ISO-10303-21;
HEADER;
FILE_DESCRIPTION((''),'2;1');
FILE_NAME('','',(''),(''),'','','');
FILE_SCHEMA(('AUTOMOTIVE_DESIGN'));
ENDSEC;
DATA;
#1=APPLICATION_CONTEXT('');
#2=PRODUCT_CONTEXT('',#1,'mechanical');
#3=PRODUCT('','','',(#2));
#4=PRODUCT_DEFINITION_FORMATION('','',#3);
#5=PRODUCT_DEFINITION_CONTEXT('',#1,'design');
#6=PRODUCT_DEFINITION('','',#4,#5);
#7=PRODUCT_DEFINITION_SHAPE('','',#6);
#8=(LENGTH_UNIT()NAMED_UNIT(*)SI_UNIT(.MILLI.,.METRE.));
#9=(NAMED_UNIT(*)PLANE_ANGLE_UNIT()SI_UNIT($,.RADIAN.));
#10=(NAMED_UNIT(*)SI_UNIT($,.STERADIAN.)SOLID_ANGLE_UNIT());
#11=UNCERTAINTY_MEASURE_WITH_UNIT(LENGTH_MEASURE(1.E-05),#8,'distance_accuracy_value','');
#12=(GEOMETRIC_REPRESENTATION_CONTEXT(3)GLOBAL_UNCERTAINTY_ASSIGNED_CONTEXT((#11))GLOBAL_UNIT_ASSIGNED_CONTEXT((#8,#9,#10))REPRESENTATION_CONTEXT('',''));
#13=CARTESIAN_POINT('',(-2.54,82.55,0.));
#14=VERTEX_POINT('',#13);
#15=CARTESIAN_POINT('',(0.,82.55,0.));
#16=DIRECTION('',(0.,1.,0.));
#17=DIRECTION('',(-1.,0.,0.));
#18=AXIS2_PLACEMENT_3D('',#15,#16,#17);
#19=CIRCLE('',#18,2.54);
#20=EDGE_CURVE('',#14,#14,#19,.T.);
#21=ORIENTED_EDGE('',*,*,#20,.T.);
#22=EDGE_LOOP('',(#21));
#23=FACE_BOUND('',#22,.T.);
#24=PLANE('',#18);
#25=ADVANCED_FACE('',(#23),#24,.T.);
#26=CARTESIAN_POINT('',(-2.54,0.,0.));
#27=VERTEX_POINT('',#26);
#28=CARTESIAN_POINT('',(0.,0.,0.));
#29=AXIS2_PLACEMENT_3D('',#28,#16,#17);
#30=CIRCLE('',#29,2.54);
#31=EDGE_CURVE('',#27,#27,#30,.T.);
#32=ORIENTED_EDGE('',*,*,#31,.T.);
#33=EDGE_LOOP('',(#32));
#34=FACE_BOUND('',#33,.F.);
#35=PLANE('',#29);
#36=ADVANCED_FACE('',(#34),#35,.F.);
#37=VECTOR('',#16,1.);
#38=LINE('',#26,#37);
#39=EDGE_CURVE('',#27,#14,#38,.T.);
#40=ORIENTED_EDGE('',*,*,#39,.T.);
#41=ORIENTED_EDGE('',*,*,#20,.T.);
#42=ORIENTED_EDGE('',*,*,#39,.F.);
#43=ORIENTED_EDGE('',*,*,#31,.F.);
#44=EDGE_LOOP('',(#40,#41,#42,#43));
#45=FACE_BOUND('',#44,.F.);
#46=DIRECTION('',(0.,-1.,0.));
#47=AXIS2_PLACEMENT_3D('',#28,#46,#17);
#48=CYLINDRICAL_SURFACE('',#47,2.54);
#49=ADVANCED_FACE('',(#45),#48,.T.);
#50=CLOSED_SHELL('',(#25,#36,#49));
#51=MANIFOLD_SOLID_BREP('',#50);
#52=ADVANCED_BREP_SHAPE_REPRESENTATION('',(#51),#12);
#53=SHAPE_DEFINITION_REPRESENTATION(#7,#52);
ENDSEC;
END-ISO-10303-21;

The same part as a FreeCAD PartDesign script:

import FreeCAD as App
import Part
import Sketcher

V = App.Vector
Q = App.Units.Quantity

doc = App.newDocument("Part")
params = doc.addObject("Spreadsheet::Sheet", "Params")
for row, (alias, value) in enumerate([
    ("sketch1_diameter", "0.2 in"),
    ("pad1_length", "3.25 in"),
], start=1):
    params.set(f"A{row}", alias)
    params.set(f"B{row}", "=" + value)
    params.setAlias(f"B{row}", alias)

body = doc.addObject("PartDesign::Body", "Body")

# Sketch on XZ plane
sketch1 = body.newObject("Sketcher::SketchObject", "Sketch")
sketch1.AttachmentSupport = (doc.getObject("XZ_Plane"), [""])
sketch1.MapMode = "FlatFace"
sketch1.addGeometry(Part.Circle(V(0, 0, 0), V(0, 0, 1), 2.5), False)
sketch1.addConstraint([
    Sketcher.Constraint("Coincident", 0, 3, -1, 1),
    Sketcher.Constraint("Diameter", 0, Q("0.2 in")),
])
sketch1.setExpression("Constraints[1]", "Params.sketch1_diameter")
pad1 = body.newObject("PartDesign::Pad", "Pad")
pad1.Profile = sketch1
pad1.setExpression("Length", "Params.pad1_length")
pad1.Reversed = True

doc.recompute()
